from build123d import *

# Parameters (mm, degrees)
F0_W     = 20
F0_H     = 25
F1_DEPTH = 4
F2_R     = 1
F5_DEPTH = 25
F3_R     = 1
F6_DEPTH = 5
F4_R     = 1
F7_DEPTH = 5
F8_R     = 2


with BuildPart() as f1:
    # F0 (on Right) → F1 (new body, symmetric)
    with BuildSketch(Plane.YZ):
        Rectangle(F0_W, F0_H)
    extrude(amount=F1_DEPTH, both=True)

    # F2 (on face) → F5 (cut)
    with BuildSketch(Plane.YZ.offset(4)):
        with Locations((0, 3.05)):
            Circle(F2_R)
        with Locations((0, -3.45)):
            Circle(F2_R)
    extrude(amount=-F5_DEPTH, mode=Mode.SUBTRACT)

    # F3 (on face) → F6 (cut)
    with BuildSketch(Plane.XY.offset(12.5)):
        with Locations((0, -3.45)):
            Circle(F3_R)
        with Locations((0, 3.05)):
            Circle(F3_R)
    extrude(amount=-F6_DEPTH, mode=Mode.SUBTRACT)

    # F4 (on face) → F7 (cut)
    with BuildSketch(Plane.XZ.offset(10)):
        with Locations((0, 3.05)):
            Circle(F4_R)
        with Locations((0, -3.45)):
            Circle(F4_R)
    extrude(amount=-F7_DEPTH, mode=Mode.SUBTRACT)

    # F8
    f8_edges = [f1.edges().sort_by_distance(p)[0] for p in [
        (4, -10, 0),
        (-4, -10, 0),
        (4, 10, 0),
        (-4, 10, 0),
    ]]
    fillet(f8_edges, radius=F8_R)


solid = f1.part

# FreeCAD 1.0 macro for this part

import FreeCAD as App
import Part
import Sketcher
Q = App.Units.Quantity


def edges_at(feature, points):
    """Names of the edges that pass closest to the given points."""
    edges = feature.Shape.Edges
    near = lambda p: min(range(len(edges)), key=lambda i: edges[i].distToShape(Part.Vertex(*p))[0])
    return sorted({f"Edge{near(p) + 1}" for p in points})


def add_polygon(sketch, points):
    """Adds a closed chain of lines whose ends are joined by coincident constraints."""
    first, n = sketch.GeometryCount, len(points)
    for a, b in zip(points, points[1:] + points[:1]):
        sketch.addGeometry(Part.LineSegment(App.Vector(*a, 0), App.Vector(*b, 0)), False)
    for i in range(n):
        sketch.addConstraint(Sketcher.Constraint("Coincident", first + i, 2, first + (i + 1) % n, 1))

doc = App.newDocument("Part")
body = doc.addObject("PartDesign::Body", "Body")

sketch1 = doc.addObject("Sketcher::SketchObject", "Sketch")
body.addObject(sketch1)
sketch1.AttachmentSupport = (doc.YZ_Plane, [""])
sketch1.MapMode = "FlatFace"
add_polygon(sketch1, [(-10, 12), (-10, -12), (10, -12), (10, 12)])
sketch1.addConstraint([
    Sketcher.Constraint("Vertical", 0),
    Sketcher.Constraint("Horizontal", 1),
    Sketcher.Constraint("Vertical", 2),
    Sketcher.Constraint("Horizontal", 3),
    Sketcher.Constraint("Symmetric", 0, 2, 2, 2, -1, 1),
    Sketcher.Constraint("DistanceX", 1, 1, 1, 2, Q("20 mm")),
    Sketcher.Constraint("DistanceY", 0, 2, 0, 1, Q("25 mm")),
])
pad1 = doc.addObject("PartDesign::Pad", "Pad")
body.addObject(pad1)
pad1.Profile = sketch1
pad1.Length = 8
pad1.Midplane = True

sketch2 = doc.addObject("Sketcher::SketchObject", "Sketch001")
body.addObject(sketch2)
sketch2.AttachmentSupport = (doc.YZ_Plane, [""])
sketch2.MapMode = "FlatFace"
sketch2.AttachmentOffset = App.Placement(App.Vector(0, 0, 4), App.Rotation())
sketch2.addGeometry([
    Part.Circle(App.Vector(0, 3, 0), App.Vector(0, 0, 1), 1),
    Part.Circle(App.Vector(0, -3.5, 0), App.Vector(0, 0, 1), 1),
], False)
sketch2.addConstraint([
    Sketcher.Constraint("Equal", 0, 1),
    Sketcher.Constraint("PointOnObject", 0, 3, -2),
    Sketcher.Constraint("PointOnObject", 1, 3, -2),
    Sketcher.Constraint("Diameter", 0, Q("2 mm")),
    Sketcher.Constraint("DistanceY", 1, 3, 0, 3, Q("6.5 mm")),
    Sketcher.Constraint("DistanceY", -1, 1, 0, 3, Q("3.05 mm")),
])
pocket1 = doc.addObject("PartDesign::Pocket", "Pocket")
body.addObject(pocket1)
pocket1.Profile = sketch2
pocket1.Length = 25

sketch3 = doc.addObject("Sketcher::SketchObject", "Sketch002")
body.addObject(sketch3)
sketch3.AttachmentSupport = (doc.XY_Plane, [""])
sketch3.MapMode = "FlatFace"
sketch3.AttachmentOffset = App.Placement(App.Vector(0, 0, 12.5), App.Rotation())
sketch3.addGeometry([
    Part.Circle(App.Vector(0, -3.5, 0), App.Vector(0, 0, 1), 1),
    Part.Circle(App.Vector(0, 3, 0), App.Vector(0, 0, 1), 1),
], False)
sketch3.addConstraint([
    Sketcher.Constraint("Equal", 0, 1),
    Sketcher.Constraint("PointOnObject", 0, 3, -2),
    Sketcher.Constraint("PointOnObject", 1, 3, -2),
    Sketcher.Constraint("Diameter", 0, Q("2 mm")),
    Sketcher.Constraint("DistanceY", 0, 3, 1, 3, Q("6.5 mm")),
    Sketcher.Constraint("DistanceY", 0, 3, -1, 1, Q("3.45 mm")),
])
pocket2 = doc.addObject("PartDesign::Pocket", "Pocket001")
body.addObject(pocket2)
pocket2.Profile = sketch3
pocket2.Length = 5

sketch4 = doc.addObject("Sketcher::SketchObject", "Sketch003")
body.addObject(sketch4)
sketch4.AttachmentSupport = (doc.XZ_Plane, [""])
sketch4.MapMode = "FlatFace"
sketch4.AttachmentOffset = App.Placement(App.Vector(0, 0, 10), App.Rotation())
sketch4.addGeometry([
    Part.Circle(App.Vector(0, 3, 0), App.Vector(0, 0, 1), 1),
    Part.Circle(App.Vector(0, -3.5, 0), App.Vector(0, 0, 1), 1),
], False)
sketch4.addConstraint([
    Sketcher.Constraint("Equal", 0, 1),
    Sketcher.Constraint("PointOnObject", 0, 3, -2),
    Sketcher.Constraint("PointOnObject", 1, 3, -2),
    Sketcher.Constraint("Diameter", 0, Q("2 mm")),
    Sketcher.Constraint("DistanceY", 1, 3, 0, 3, Q("6.5 mm")),
    Sketcher.Constraint("DistanceY", -1, 1, 0, 3, Q("3.05 mm")),
])
pocket3 = doc.addObject("PartDesign::Pocket", "Pocket002")
body.addObject(pocket3)
pocket3.Profile = sketch4
pocket3.Length = 5
doc.recompute()

fillet = doc.addObject("PartDesign::Fillet", "Fillet")
body.addObject(fillet)
fillet.Base = (pocket3, edges_at(pocket3, [
    (4, -10, 0),
    (-4, -10, 0),
    (4, 10, 0),
    (-4, 10, 0),
]))
fillet.Radius = 2

doc.recompute()
